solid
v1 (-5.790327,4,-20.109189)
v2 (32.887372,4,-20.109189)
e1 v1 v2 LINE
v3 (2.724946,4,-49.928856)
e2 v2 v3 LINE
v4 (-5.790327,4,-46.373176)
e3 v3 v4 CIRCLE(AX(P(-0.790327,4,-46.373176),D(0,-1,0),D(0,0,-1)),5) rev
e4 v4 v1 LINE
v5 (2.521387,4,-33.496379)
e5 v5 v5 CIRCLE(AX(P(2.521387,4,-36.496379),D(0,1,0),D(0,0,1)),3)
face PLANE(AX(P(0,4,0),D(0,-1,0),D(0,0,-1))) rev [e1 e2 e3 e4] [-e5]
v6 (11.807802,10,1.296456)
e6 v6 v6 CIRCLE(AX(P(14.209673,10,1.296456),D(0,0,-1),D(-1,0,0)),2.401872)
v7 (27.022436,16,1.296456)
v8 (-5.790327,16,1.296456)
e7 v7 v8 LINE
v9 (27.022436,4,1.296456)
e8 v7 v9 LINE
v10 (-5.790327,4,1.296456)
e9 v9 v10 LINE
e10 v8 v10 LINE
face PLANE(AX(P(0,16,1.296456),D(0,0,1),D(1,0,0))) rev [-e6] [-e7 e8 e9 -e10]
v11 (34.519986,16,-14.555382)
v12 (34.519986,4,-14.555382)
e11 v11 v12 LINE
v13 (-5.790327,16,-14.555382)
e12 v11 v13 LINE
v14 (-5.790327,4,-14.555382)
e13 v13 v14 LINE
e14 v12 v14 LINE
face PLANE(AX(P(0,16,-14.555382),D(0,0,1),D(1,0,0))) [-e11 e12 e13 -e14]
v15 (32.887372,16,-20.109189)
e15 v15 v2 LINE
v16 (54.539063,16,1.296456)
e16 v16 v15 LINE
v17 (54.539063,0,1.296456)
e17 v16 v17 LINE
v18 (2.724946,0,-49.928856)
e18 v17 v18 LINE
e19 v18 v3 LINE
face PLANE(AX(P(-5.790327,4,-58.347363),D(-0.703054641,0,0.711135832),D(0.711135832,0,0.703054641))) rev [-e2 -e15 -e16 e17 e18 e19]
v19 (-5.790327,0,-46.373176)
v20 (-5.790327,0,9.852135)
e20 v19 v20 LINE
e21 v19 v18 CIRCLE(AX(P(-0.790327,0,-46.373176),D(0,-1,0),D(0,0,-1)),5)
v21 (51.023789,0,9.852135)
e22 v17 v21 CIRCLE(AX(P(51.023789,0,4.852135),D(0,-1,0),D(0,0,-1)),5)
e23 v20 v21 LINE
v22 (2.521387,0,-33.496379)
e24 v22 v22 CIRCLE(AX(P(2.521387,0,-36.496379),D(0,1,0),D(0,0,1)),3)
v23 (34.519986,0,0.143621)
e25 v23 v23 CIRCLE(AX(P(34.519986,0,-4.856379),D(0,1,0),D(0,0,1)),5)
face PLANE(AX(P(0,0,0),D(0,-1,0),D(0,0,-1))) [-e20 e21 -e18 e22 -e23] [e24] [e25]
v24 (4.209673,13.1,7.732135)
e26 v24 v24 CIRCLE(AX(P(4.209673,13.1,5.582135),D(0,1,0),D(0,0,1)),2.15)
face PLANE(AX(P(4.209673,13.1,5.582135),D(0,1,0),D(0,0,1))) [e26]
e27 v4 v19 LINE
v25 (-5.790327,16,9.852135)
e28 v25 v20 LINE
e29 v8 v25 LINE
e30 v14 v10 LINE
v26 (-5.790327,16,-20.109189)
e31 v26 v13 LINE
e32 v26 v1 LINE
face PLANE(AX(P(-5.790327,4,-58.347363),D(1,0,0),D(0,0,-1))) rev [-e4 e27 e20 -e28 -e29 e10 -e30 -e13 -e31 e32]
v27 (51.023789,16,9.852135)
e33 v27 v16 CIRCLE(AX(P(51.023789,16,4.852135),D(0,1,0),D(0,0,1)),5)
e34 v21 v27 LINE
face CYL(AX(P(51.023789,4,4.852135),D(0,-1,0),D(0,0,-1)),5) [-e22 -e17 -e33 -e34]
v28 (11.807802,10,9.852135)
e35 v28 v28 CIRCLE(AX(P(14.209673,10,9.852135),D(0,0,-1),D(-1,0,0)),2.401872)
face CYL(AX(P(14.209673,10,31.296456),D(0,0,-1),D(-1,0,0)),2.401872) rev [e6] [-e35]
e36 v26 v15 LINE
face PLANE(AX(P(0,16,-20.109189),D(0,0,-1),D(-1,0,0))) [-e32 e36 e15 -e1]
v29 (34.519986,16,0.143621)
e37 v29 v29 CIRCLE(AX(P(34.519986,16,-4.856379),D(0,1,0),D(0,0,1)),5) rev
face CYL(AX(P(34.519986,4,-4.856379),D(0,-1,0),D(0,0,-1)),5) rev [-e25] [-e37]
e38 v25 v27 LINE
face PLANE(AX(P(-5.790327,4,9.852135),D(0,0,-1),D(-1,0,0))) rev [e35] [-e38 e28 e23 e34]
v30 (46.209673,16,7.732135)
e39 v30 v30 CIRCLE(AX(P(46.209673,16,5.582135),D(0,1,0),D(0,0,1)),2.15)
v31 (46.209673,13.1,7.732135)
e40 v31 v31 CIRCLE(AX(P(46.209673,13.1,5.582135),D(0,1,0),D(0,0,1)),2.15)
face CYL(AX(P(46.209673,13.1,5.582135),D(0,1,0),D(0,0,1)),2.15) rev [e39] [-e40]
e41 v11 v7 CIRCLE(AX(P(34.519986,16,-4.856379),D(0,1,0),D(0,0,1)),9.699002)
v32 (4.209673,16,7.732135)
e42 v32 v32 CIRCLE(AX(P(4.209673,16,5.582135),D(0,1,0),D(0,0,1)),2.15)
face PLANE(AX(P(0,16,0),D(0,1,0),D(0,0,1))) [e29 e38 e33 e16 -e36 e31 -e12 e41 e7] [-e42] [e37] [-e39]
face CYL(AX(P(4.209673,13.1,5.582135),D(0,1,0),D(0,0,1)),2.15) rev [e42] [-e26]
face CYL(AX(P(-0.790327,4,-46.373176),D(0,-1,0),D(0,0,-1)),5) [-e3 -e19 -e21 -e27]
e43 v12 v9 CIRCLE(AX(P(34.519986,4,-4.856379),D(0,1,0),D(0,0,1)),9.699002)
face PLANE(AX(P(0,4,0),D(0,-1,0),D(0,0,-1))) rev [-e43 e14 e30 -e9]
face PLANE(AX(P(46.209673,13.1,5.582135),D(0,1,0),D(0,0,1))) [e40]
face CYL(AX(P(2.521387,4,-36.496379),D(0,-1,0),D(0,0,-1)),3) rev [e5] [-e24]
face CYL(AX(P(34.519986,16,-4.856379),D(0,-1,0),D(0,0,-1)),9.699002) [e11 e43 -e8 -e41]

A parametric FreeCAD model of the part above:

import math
import FreeCAD as App
import Part
import Sketcher


def edges_at(feature, points):
    """Names of the edges that pass closest to the given points."""
    edges = feature.Shape.Edges
    near = lambda p: min(range(len(edges)), key=lambda i: edges[i].distToShape(Part.Vertex(*p))[0])
    return sorted({f"Edge{near(p) + 1}" for p in points})

doc = App.newDocument("Part")
body = doc.addObject("PartDesign::Body", "Body")

# Sketch on XZ plane
sketch1 = doc.addObject("Sketcher::SketchObject", "Sketch")
body.addObject(sketch1)
sketch1.AttachmentSupport = (doc.XZ_Plane, [""])
sketch1.MapMode = "FlatFace"
sketch1.addGeometry(Part.LineSegment(App.Vector(-5.8, -58.3, 0), App.Vector(-5.8, 9.9, 0)), False)
sketch1.addGeometry(Part.LineSegment(App.Vector(-5.8, 9.9, 0), App.Vector(63.2, 9.9, 0)), False)
sketch1.addGeometry(Part.LineSegment(App.Vector(63.2, 9.9, 0), App.Vector(-5.8, -58.3, 0)), False)
sketch1.addGeometry(Part.Circle(App.Vector(34.5, -4.9, 0), App.Vector(0, 0, 1), 5), False)
sketch1.addGeometry(Part.Circle(App.Vector(2.5, -36.5, 0), App.Vector(0, 0, 1), 3), False)
sketch1.addConstraint(Sketcher.Constraint("Coincident", 0, 2, 1, 1))
sketch1.addConstraint(Sketcher.Constraint("Coincident", 1, 2, 2, 1))
sketch1.addConstraint(Sketcher.Constraint("Coincident", 2, 2, 0, 1))
sketch1.addConstraint(Sketcher.Constraint("Vertical", 0))
sketch1.addConstraint(Sketcher.Constraint("Horizontal", 1))
sketch1.addConstraint(Sketcher.Constraint("Diameter", 3, 10.0))
sketch1.addConstraint(Sketcher.Constraint("Diameter", 4, 6.0))
sketch1.addConstraint(Sketcher.Constraint("DistanceY", 4, 3, 3, 3, 31.64))
sketch1.addConstraint(Sketcher.Constraint("DistanceY", 0, 1, 0, 2, 68.199499))
sketch1.addConstraint(Sketcher.Constraint("DistanceX", 1, 1, 1, 2, 68.983411))
sketch1.addConstraint(Sketcher.Constraint("DistanceX", 4, 3, 3, 3, 31.9986))
sketch1.addConstraint(Sketcher.Constraint("DistanceY", 3, 3, -1, 1, 4.856379))
sketch1.addConstraint(Sketcher.Constraint("DistanceX", -1, 1, 3, 3, 34.519986))
sketch1.addConstraint(Sketcher.Constraint("DistanceX", 0, 2, -1, 1, 5.790327))
sketch1.addConstraint(Sketcher.Constraint("DistanceY", -1, 1, 0, 2, 9.852135))
pad1 = doc.addObject("PartDesign::Pad", "Pad")
body.addObject(pad1)
pad1.Profile = sketch1
pad1.Length = 4
pad1.Reversed = True
doc.recompute()

fillet = doc.addObject("PartDesign::Fillet", "Fillet")
body.addObject(fillet)
fillet.Base = (pad1, edges_at(pad1, [(63.193, 2, 9.852), (-5.79, 2, -58.347)]))
fillet.Radius = 5

# Sketch on XZ plane
sketch2 = doc.addObject("Sketcher::SketchObject", "Sketch001")
body.addObject(sketch2)
sketch2.AttachmentSupport = (doc.XZ_Plane, [""])
sketch2.MapMode = "FlatFace"
sketch2.AttachmentOffset = App.Placement(App.Vector(0, 0, -4), App.Rotation())
sketch2.addGeometry(Part.LineSegment(App.Vector(54.5, 1.3, 0), App.Vector(41.3, -11.8, 0)), False)
sketch2.addGeometry(Part.LineSegment(App.Vector(41.3, -11.8, 0), App.Vector(32.9, -20.1, 0)), False)
sketch2.addGeometry(Part.LineSegment(App.Vector(32.9, -20.1, 0), App.Vector(-5.8, -20.1, 0)), False)
sketch2.addGeometry(Part.LineSegment(App.Vector(-5.8, -20.1, 0), App.Vector(-5.8, -14.6, 0)), False)
sketch2.addGeometry(Part.LineSegment(App.Vector(-5.8, -14.6, 0), App.Vector(34.5, -14.6, 0)), False)
sketch2.addGeometry(Part.ArcOfCircle(Part.Circle(App.Vector(34.5, -4.9, 0), App.Vector(0, 0, 1), 9.7), math.radians(141), math.radians(270)), False)
sketch2.addGeometry(Part.LineSegment(App.Vector(27, 1.3, 0), App.Vector(-5.8, 1.3, 0)), False)
sketch2.addGeometry(Part.LineSegment(App.Vector(-5.8, 1.3, 0), App.Vector(-5.8, 9.9, 0)), False)
sketch2.addGeometry(Part.LineSegment(App.Vector(-5.8, 9.9, 0), App.Vector(51, 9.9, 0)), False)
sketch2.addGeometry(Part.ArcOfCircle(Part.Circle(App.Vector(51, 4.9, 0), App.Vector(0, 0, 1), 5), math.radians(-45), math.radians(90)), False)
sketch2.addGeometry(Part.Circle(App.Vector(34.5, -4.9, 0), App.Vector(0, 0, 1), 5), False)
sketch2.addConstraint(Sketcher.Constraint("Coincident", 0, 2, 1, 1))
sketch2.addConstraint(Sketcher.Constraint("Coincident", 1, 2, 2, 1))
sketch2.addConstraint(Sketcher.Constraint("Coincident", 2, 2, 3, 1))
sketch2.addConstraint(Sketcher.Constraint("Coincident", 3, 2, 4, 1))
sketch2.addConstraint(Sketcher.Constraint("Tangent", 4, 2, 5, 2))
sketch2.addConstraint(Sketcher.Constraint("Coincident", 5, 1, 6, 1))
sketch2.addConstraint(Sketcher.Constraint("Coincident", 6, 2, 7, 1))
sketch2.addConstraint(Sketcher.Constraint("Coincident", 7, 2, 8, 1))
sketch2.addConstraint(Sketcher.Constraint("Tangent", 8, 2, 9, 2))
sketch2.addConstraint(Sketcher.Constraint("Tangent", 9, 1, 0, 1))
sketch2.addConstraint(Sketcher.Constraint("Horizontal", 2))
sketch2.addConstraint(Sketcher.Constraint("Vertical", 3))
sketch2.addConstraint(Sketcher.Constraint("Horizontal", 4))
sketch2.addConstraint(Sketcher.Constraint("Horizontal", 6))
sketch2.addConstraint(Sketcher.Constraint("Vertical", 7))
sketch2.addConstraint(Sketcher.Constraint("Horizontal", 8))
sketch2.addConstraint(Sketcher.Constraint("Coincident", 10, 3, 5, 3))
sketch2.addConstraint(Sketcher.Constraint("Equal", 9, 10))
sketch2.addConstraint(Sketcher.Constraint("Parallel", 0, 1))
sketch2.addConstraint(Sketcher.Constraint("Horizontal", 6, 2, 9, 1))
sketch2.addConstraint(Sketcher.Constraint("Vertical", 3, 2, 6, 2))
sketch2.addConstraint(Sketcher.Constraint("Diameter", 10, 10.0))
sketch2.addConstraint(Sketcher.Constraint("DistanceX", 2, 2, 2, 1, 38.677699))
sketch2.addConstraint(Sketcher.Constraint("Radius", 5, 9.699002))
sketch2.addConstraint(Sketcher.Constraint("DistanceY", 7, 1, 7, 2, 8.555679))
sketch2.addConstraint(Sketcher.Constraint("DistanceY", 1, 2, 0, 2, 8.355501))
sketch2.addConstraint(Sketcher.Constraint("DistanceX", 4, 1, 4, 2, 40.310313))
sketch2.addConstraint(Sketcher.Constraint("DistanceX", 6, 2, 6, 1, 32.812763))
sketch2.addConstraint(Sketcher.Constraint("DistanceX", 8, 1, 8, 2, 56.814116))
sketch2.addConstraint(Sketcher.Constraint("DistanceY", 5, 3, -1, 1, 4.856379))
sketch2.addConstraint(Sketcher.Constraint("DistanceX", -1, 1, 9, 3, 51.023789))
pad2 = doc.addObject("PartDesign::Pad", "Pad001")
body.addObject(pad2)
pad2.Profile = sketch2
pad2.Length = 12
pad2.Reversed = True

# Sketch on XY plane
sketch3 = doc.addObject("Sketcher::SketchObject", "Sketch002")
body.addObject(sketch3)
sketch3.AttachmentSupport = (doc.XY_Plane, [""])
sketch3.MapMode = "FlatFace"
sketch3.AttachmentOffset = App.Placement(App.Vector(0, 0, 1.296456), App.Rotation())
sketch3.addGeometry(Part.Circle(App.Vector(14.2, 10, 0), App.Vector(0, 0, 1), 2.4), False)
sketch3.addConstraint(Sketcher.Constraint("DistanceY", -1, 1, 0, 3, 10.0))
sketch3.addConstraint(Sketcher.Constraint("Diameter", 0, 4.803743))
sketch3.addConstraint(Sketcher.Constraint("DistanceX", -1, 1, 0, 3, 14.209673))
pocket1 = doc.addObject("PartDesign::Pocket", "Pocket")
body.addObject(pocket1)
pocket1.Profile = sketch3
pocket1.Length = 30
pocket1.Reversed = True

# Sketch on XZ plane
sketch4 = doc.addObject("Sketcher::SketchObject", "Sketch003")
body.addObject(sketch4)
sketch4.AttachmentSupport = (doc.XZ_Plane, [""])
sketch4.MapMode = "FlatFace"
sketch4.AttachmentOffset = App.Placement(App.Vector(0, 0, -16), App.Rotation())
sketch4.addGeometry(Part.Circle(App.Vector(46.2, 5.6, 0), App.Vector(0, 0, 1), 2.1), False)
sketch4.addGeometry(Part.Circle(App.Vector(4.2, 5.6, 0), App.Vector(0, 0, 1), 2.1), False)
sketch4.addConstraint(Sketcher.Constraint("Equal", 0, 1))
sketch4.addConstraint(Sketcher.Constraint("Horizontal", 0, 3, 1, 3))
sketch4.addConstraint(Sketcher.Constraint("Diameter", 0, 4.3))
sketch4.addConstraint(Sketcher.Constraint("DistanceX", 1, 3, 0, 3, 42.0))
sketch4.addConstraint(Sketcher.Constraint("DistanceX", -1, 1, 0, 3, 46.209673))
sketch4.addConstraint(Sketcher.Constraint("DistanceY", -1, 1, 0, 3, 5.582135))
pocket2 = doc.addObject("PartDesign::Pocket", "Pocket001")
body.addObject(pocket2)
pocket2.Profile = sketch4
pocket2.Length = 2.9
pocket2.Reversed = True

doc.recompute()
